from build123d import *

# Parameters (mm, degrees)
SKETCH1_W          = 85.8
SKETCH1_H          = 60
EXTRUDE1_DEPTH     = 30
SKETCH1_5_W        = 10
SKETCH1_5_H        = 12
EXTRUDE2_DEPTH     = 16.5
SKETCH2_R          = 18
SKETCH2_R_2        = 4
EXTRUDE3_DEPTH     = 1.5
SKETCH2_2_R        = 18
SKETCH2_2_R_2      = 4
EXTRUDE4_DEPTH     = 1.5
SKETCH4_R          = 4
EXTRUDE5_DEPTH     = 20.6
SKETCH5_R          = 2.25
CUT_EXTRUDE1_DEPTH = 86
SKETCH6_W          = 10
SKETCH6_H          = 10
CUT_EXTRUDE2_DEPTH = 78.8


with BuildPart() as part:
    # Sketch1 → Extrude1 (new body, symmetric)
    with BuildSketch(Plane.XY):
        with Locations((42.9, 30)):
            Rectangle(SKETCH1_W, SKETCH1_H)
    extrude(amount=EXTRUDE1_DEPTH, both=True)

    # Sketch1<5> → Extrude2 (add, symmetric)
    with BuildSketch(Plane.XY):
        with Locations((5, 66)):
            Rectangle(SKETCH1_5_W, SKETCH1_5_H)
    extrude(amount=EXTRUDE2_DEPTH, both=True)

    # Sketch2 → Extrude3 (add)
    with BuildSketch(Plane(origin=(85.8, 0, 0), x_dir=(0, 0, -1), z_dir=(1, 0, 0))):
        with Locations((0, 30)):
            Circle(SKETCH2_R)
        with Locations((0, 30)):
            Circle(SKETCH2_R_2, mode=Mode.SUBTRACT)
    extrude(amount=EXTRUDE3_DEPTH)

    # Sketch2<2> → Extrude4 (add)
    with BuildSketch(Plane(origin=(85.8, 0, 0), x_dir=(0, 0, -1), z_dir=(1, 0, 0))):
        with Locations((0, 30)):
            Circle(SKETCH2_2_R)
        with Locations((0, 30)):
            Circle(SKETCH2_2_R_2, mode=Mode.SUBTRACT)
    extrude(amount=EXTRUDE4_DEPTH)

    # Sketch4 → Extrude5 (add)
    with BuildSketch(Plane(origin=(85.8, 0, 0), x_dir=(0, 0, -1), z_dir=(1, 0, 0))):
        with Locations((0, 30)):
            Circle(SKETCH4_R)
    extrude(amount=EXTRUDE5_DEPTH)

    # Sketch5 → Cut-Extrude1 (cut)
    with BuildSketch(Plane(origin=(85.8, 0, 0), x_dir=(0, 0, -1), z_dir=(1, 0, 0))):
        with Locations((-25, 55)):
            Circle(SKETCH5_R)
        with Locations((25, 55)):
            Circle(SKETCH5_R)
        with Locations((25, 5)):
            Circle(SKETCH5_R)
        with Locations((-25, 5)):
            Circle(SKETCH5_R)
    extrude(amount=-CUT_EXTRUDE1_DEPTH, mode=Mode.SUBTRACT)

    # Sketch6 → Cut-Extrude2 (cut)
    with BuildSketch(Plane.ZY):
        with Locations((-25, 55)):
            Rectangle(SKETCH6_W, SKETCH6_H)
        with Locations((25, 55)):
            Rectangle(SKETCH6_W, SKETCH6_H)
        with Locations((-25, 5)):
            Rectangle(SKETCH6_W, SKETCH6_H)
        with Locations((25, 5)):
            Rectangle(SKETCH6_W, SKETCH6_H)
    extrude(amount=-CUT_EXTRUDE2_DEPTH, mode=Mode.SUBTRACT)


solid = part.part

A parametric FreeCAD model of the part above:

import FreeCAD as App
import Part
import Sketcher

V = App.Vector
Q = App.Units.Quantity

doc = App.newDocument("Part")
body = doc.addObject("PartDesign::Body", "Body")

# Sketch on XY plane
sketch1 = body.newObject("Sketcher::SketchObject", "Sketch")
sketch1.AttachmentSupport = (doc.getObject("XY_Plane"), [""])
sketch1.MapMode = "FlatFace"
sketch1.addGeometry([
    Part.LineSegment(V(0, 60, 0), V(0, 0, 0)),
    Part.LineSegment(V(0, 0, 0), V(86, 0, 0)),
    Part.LineSegment(V(86, 0, 0), V(86, 60, 0)),
    Part.LineSegment(V(86, 60, 0), V(0, 60, 0)),
], False)
sketch1.addConstraint([
    Sketcher.Constraint("Coincident", 0, 2, 1, 1),
    Sketcher.Constraint("Coincident", 1, 2, 2, 1),
    Sketcher.Constraint("Coincident", 2, 2, 3, 1),
    Sketcher.Constraint("Coincident", 3, 2, 0, 1),
    Sketcher.Constraint("Vertical", 0),
    Sketcher.Constraint("Horizontal", 1),
    Sketcher.Constraint("Vertical", 2),
    Sketcher.Constraint("Horizontal", 3),
    Sketcher.Constraint("Coincident", 0, 2, -1, 1),
    Sketcher.Constraint("DistanceY", 0, 2, 0, 1, Q("60 mm")),
    Sketcher.Constraint("DistanceX", 1, 1, 1, 2, Q("85.8 mm")),
])
pad1 = body.newObject("PartDesign::Pad", "Pad")
pad1.Profile = sketch1
pad1.Length = 60
pad1.Midplane = True

# Sketch on XY plane
sketch2 = body.newObject("Sketcher::SketchObject", "Sketch001")
sketch2.AttachmentSupport = (doc.getObject("XY_Plane"), [""])
sketch2.MapMode = "FlatFace"
sketch2.addGeometry([
    Part.LineSegment(V(0, 72, 0), V(0, 60, 0)),
    Part.LineSegment(V(0, 60, 0), V(10, 60, 0)),
    Part.LineSegment(V(10, 60, 0), V(10, 72, 0)),
    Part.LineSegment(V(10, 72, 0), V(0, 72, 0)),
], False)
sketch2.addConstraint([
    Sketcher.Constraint("Coincident", 0, 2, 1, 1),
    Sketcher.Constraint("Coincident", 1, 2, 2, 1),
    Sketcher.Constraint("Coincident", 2, 2, 3, 1),
    Sketcher.Constraint("Coincident", 3, 2, 0, 1),
    Sketcher.Constraint("Vertical", 0),
    Sketcher.Constraint("Horizontal", 1),
    Sketcher.Constraint("Vertical", 2),
    Sketcher.Constraint("Horizontal", 3),
    Sketcher.Constraint("PointOnObject", 0, 2, -2),
    Sketcher.Constraint("DistanceX", 1, 1, 1, 2, Q("10 mm")),
    Sketcher.Constraint("DistanceY", 0, 2, 0, 1, Q("12 mm")),
    Sketcher.Constraint("DistanceY", -1, 1, 0, 2, Q("60 mm")),
])
pad2 = body.newObject("PartDesign::Pad", "Pad001")
pad2.Profile = sketch2
pad2.Length = 33
pad2.Midplane = True

# Sketch on YZ plane
sketch3 = body.newObject("Sketcher::SketchObject", "Sketch002")
sketch3.AttachmentSupport = (doc.getObject("YZ_Plane"), [""])
sketch3.MapMode = "FlatFace"
sketch3.AttachmentOffset = App.Placement(V(0, 0, 85.8), App.Rotation())
sketch3.addGeometry([
    Part.Circle(V(30, 0, 0), V(0, 0, 1), 18),
    Part.Circle(V(30, 0, 0), V(0, 0, 1), 4),
], False)
sketch3.addConstraint([
    Sketcher.Constraint("Coincident", 1, 3, 0, 3),
    Sketcher.Constraint("PointOnObject", 0, 3, -1),
    Sketcher.Constraint("Diameter", 0, Q("36 mm")),
    Sketcher.Constraint("Diameter", 1, Q("8 mm")),
    Sketcher.Constraint("DistanceX", -1, 1, 0, 3, Q("30 mm")),
])
pad3 = body.newObject("PartDesign::Pad", "Pad002")
pad3.Profile = sketch3
pad3.Length = 1.5

# Sketch on YZ plane
sketch4 = body.newObject("Sketcher::SketchObject", "Sketch003")
sketch4.AttachmentSupport = (doc.getObject("YZ_Plane"), [""])
sketch4.MapMode = "FlatFace"
sketch4.AttachmentOffset = App.Placement(V(0, 0, 85.8), App.Rotation())
sketch4.addGeometry([
    Part.Circle(V(30, 0, 0), V(0, 0, 1), 18),
    Part.Circle(V(30, 0, 0), V(0, 0, 1), 4),
], False)
sketch4.addConstraint([
    Sketcher.Constraint("Coincident", 1, 3, 0, 3),
    Sketcher.Constraint("PointOnObject", 0, 3, -1),
    Sketcher.Constraint("Diameter", 0, Q("36 mm")),
    Sketcher.Constraint("Diameter", 1, Q("8 mm")),
    Sketcher.Constraint("DistanceX", -1, 1, 0, 3, Q("30 mm")),
])
pad4 = body.newObject("PartDesign::Pad", "Pad003")
pad4.Profile = sketch4
pad4.Length = 1.5

# Sketch on YZ plane
sketch5 = body.newObject("Sketcher::SketchObject", "Sketch004")
sketch5.AttachmentSupport = (doc.getObject("YZ_Plane"), [""])
sketch5.MapMode = "FlatFace"
sketch5.AttachmentOffset = App.Placement(V(0, 0, 85.8), App.Rotation())
sketch5.addGeometry(Part.Circle(V(30, 0, 0), V(0, 0, 1), 4), False)
sketch5.addConstraint([
    Sketcher.Constraint("PointOnObject", 0, 3, -1),
    Sketcher.Constraint("Diameter", 0, Q("8 mm")),
    Sketcher.Constraint("DistanceX", -1, 1, 0, 3, Q("30 mm")),
])
pad5 = body.newObject("PartDesign::Pad", "Pad004")
pad5.Profile = sketch5
pad5.Length = 20.6

# Sketch on YZ plane
sketch6 = body.newObject("Sketcher::SketchObject", "Sketch005")
sketch6.AttachmentSupport = (doc.getObject("YZ_Plane"), [""])
sketch6.MapMode = "FlatFace"
sketch6.AttachmentOffset = App.Placement(V(0, 0, 85.8), App.Rotation())
sketch6.addGeometry([
    Part.Circle(V(55, 25, 0), V(0, 0, 1), 2.2),
    Part.Circle(V(55, -25, 0), V(0, 0, 1), 2.2),
    Part.Circle(V(5, -25, 0), V(0, 0, 1), 2.2),
    Part.Circle(V(5, 25, 0), V(0, 0, 1), 2.2),
], False)
sketch6.addConstraint([
    Sketcher.Constraint("Equal", 0, 1),
    Sketcher.Constraint("Equal", 1, 2),
    Sketcher.Constraint("Equal", 2, 3),
    Sketcher.Constraint("Symmetric", 0, 3, 1, 3, -1),
    Sketcher.Constraint("Symmetric", 2, 3, 3, 3, -1),
    Sketcher.Constraint("Horizontal", 1, 3, 2, 3),
    Sketcher.Constraint("Diameter", 0, Q("4.5 mm")),
    Sketcher.Constraint("DistanceX", -1, 1, 0, 3, Q("55 mm")),
    Sketcher.Constraint("DistanceY", -1, 1, 0, 3, Q("25 mm")),
    Sketcher.Constraint("DistanceX", -1, 1, 2, 3, Q("5 mm")),
])
pocket1 = body.newObject("PartDesign::Pocket", "Pocket")
pocket1.Profile = sketch6
pocket1.Length = 86

# Sketch on YZ plane
sketch7 = body.newObject("Sketcher::SketchObject", "Sketch006")
sketch7.AttachmentSupport = (doc.getObject("YZ_Plane"), [""])
sketch7.MapMode = "FlatFace"
sketch7.addGeometry([
    Part.LineSegment(V(60, -30, 0), V(50, -30, 0)),  # 0
    Part.LineSegment(V(50, -30, 0), V(50, -20, 0)),  # 1
    Part.LineSegment(V(50, -20, 0), V(60, -20, 0)),  # 2
    Part.LineSegment(V(60, -20, 0), V(60, -30, 0)),  # 3
    Part.LineSegment(V(60, 20, 0), V(50, 20, 0)),  # 4
    Part.LineSegment(V(50, 20, 0), V(50, 30, 0)),  # 5
    Part.LineSegment(V(50, 30, 0), V(60, 30, 0)),  # 6
    Part.LineSegment(V(60, 30, 0), V(60, 20, 0)),  # 7
    Part.LineSegment(V(10, -30, 0), V(0, -30, 0)),  # 8
    Part.LineSegment(V(0, -30, 0), V(0, -20, 0)),  # 9
    Part.LineSegment(V(0, -20, 0), V(10, -20, 0)),  # 10
    Part.LineSegment(V(10, -20, 0), V(10, -30, 0)),  # 11
    Part.LineSegment(V(10, 20, 0), V(0, 20, 0)),  # 12
    Part.LineSegment(V(0, 20, 0), V(0, 30, 0)),  # 13
    Part.LineSegment(V(0, 30, 0), V(10, 30, 0)),  # 14
    Part.LineSegment(V(10, 30, 0), V(10, 20, 0)),  # 15
], False)
sketch7.addConstraint([
    Sketcher.Constraint("Coincident", 0, 2, 1, 1),
    Sketcher.Constraint("Coincident", 1, 2, 2, 1),
    Sketcher.Constraint("Coincident", 2, 2, 3, 1),
    Sketcher.Constraint("Coincident", 3, 2, 0, 1),
    Sketcher.Constraint("Coincident", 4, 2, 5, 1),
    Sketcher.Constraint("Coincident", 5, 2, 6, 1),
    Sketcher.Constraint("Coincident", 6, 2, 7, 1),
    Sketcher.Constraint("Coincident", 7, 2, 4, 1),
    Sketcher.Constraint("Coincident", 8, 2, 9, 1),
    Sketcher.Constraint("Coincident", 9, 2, 10, 1),
    Sketcher.Constraint("Coincident", 10, 2, 11, 1),
    Sketcher.Constraint("Coincident", 11, 2, 8, 1),
    Sketcher.Constraint("Coincident", 12, 2, 13, 1),
    Sketcher.Constraint("Coincident", 13, 2, 14, 1),
    Sketcher.Constraint("Coincident", 14, 2, 15, 1),
    Sketcher.Constraint("Coincident", 15, 2, 12, 1),
    Sketcher.Constraint("Horizontal", 0),
    Sketcher.Constraint("Vertical", 1),
    Sketcher.Constraint("Horizontal", 2),
    Sketcher.Constraint("Vertical", 3),
    Sketcher.Constraint("Horizontal", 4),
    Sketcher.Constraint("Vertical", 5),
    Sketcher.Constraint("Horizontal", 6),
    Sketcher.Constraint("Vertical", 7),
    Sketcher.Constraint("Horizontal", 8),
    Sketcher.Constraint("Vertical", 9),
    Sketcher.Constraint("Horizontal", 10),
    Sketcher.Constraint("Vertical", 11),
    Sketcher.Constraint("Horizontal", 12),
    Sketcher.Constraint("Vertical", 13),
    Sketcher.Constraint("Horizontal", 14),
    Sketcher.Constraint("Vertical", 15),
    Sketcher.Constraint("Symmetric", 9, 2, 12, 2, -1, 1),
    Sketcher.Constraint("Symmetric", 1, 2, 4, 2, -1),
    Sketcher.Constraint("Symmetric", 3, 2, 6, 2, -1),
    Sketcher.Constraint("Symmetric", 8, 2, 13, 2, -1),
    Sketcher.Constraint("Horizontal", 3, 2, 8, 2),
    Sketcher.Constraint("Horizontal", 2, 2, 9, 2),
    Sketcher.Constraint("Vertical", 11, 2, 14, 2),
    Sketcher.Constraint("Equal", 6, 8),
    Sketcher.Constraint("Equal", 14, 1),
    Sketcher.Constraint("DistanceX", 0, 2, 0, 1, Q("10 mm")),
    Sketcher.Constraint("DistanceX", -1, 1, 0, 2, Q("50 mm")),
    Sketcher.Constraint("DistanceY", 0, 2, -1, 1, Q("30 mm")),
])
pocket2 = body.newObject("PartDesign::Pocket", "Pocket001")
pocket2.Profile = sketch7
pocket2.Length = 78.8
pocket2.Reversed = True

doc.recompute()
